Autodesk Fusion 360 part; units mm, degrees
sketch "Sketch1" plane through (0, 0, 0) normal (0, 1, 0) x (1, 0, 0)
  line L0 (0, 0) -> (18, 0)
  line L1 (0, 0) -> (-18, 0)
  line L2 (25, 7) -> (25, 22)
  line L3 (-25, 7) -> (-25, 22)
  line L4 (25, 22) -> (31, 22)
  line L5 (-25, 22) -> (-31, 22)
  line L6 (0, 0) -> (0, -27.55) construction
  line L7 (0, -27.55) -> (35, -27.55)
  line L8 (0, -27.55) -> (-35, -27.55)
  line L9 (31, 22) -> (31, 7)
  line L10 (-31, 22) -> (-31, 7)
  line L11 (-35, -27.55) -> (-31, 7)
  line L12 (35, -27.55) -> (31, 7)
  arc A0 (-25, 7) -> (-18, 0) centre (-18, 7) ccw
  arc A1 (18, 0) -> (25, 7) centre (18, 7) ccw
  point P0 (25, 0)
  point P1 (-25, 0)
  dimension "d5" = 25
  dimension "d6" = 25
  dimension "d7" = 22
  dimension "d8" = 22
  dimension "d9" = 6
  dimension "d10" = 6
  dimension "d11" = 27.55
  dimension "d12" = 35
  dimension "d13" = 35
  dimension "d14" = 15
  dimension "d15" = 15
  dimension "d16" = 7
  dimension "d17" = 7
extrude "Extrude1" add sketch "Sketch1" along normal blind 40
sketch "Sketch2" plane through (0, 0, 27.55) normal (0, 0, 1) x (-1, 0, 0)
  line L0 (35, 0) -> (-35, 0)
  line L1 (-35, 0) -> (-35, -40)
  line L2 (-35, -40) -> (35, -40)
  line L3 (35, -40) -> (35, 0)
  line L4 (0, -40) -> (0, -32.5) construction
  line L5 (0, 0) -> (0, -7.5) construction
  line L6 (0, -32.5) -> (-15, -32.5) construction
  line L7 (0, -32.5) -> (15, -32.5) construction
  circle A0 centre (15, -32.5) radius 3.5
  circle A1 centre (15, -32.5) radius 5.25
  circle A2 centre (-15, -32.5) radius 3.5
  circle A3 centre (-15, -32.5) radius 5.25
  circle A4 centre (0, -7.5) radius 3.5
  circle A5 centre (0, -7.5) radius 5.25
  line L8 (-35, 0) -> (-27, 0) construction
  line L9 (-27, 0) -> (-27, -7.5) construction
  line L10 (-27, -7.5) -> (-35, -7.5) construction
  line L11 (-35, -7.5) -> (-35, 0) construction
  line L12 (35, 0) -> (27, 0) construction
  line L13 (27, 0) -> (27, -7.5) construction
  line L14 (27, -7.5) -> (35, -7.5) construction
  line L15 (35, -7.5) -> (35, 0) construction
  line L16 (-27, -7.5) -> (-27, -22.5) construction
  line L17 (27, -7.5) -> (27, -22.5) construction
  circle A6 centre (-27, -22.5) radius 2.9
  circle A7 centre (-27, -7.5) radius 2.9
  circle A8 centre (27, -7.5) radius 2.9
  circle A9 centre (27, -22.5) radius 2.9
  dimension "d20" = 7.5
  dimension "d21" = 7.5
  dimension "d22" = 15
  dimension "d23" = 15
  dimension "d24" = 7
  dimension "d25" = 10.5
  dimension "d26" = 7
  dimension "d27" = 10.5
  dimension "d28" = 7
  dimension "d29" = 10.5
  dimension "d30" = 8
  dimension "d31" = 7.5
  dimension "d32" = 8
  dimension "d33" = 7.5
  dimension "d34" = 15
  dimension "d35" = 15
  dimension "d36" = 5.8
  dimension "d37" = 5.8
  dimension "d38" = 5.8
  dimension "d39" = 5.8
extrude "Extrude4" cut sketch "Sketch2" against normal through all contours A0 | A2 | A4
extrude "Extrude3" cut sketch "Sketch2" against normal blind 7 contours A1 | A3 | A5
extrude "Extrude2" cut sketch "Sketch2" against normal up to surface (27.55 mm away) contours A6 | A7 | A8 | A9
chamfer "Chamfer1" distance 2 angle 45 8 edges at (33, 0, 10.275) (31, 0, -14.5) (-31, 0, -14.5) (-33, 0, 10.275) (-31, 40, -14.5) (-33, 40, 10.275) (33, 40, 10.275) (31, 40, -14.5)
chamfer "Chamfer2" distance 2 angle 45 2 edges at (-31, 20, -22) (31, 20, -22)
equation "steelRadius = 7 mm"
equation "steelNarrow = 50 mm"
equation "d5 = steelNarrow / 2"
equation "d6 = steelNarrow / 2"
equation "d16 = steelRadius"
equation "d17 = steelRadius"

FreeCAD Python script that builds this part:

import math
import FreeCAD as App
import Part
import Sketcher


def edges_at(feature, points):
    """Names of the edges that pass closest to the given points."""
    edges = feature.Shape.Edges
    near = lambda p: min(range(len(edges)), key=lambda i: edges[i].distToShape(Part.Vertex(*p))[0])
    return sorted({f"Edge{near(p) + 1}" for p in points})

doc = App.newDocument("Part")
params = doc.addObject("Spreadsheet::Sheet", "Params")
for row, (alias, value) in enumerate([
    ("sketch1_radius", "7 mm"),
    ("sketch1_width", "6 mm"),
    ("sketch1_height", "15 mm"),
    ("pad1_length", "40 mm"),
    ("sketch2_diameter", "7 mm"),
    ("sketch3_diameter", "7 mm"),
    ("sketch3_diameter2", "10.5 mm"),
    ("pocket2_length", "7 mm"),
    ("sketch4_diameter", "5.8 mm"),
    ("pocket3_length", "27.55 mm"),
    ("chamfer_size", "2 mm"),
    ("chamfer2_size", "2 mm"),
], start=1):
    params.set(f"A{row}", alias)
    params.set(f"B{row}", "=" + value)
    params.setAlias(f"B{row}", alias)

body = doc.addObject("PartDesign::Body", "Body")

sketch1 = doc.addObject("Sketcher::SketchObject", "Sketch")
body.addObject(sketch1)
sketch1.AttachmentSupport = (doc.XZ_Plane, [""])
sketch1.MapMode = "FlatFace"
sketch1.addGeometry([
    Part.LineSegment(App.Vector(18, 0, 0), App.Vector(-18, 0, 0)),
    Part.ArcOfCircle(Part.Circle(App.Vector(-18, -7, 0), App.Vector(0, 0, 1), 7), math.radians(90), math.radians(180)),
    Part.LineSegment(App.Vector(-25, -7, 0), App.Vector(-25, -22, 0)),
    Part.LineSegment(App.Vector(-25, -22, 0), App.Vector(-31, -22, 0)),
    Part.LineSegment(App.Vector(-31, -22, 0), App.Vector(-31, -7, 0)),
    Part.LineSegment(App.Vector(-31, -7, 0), App.Vector(-35, 27.55, 0)),
    Part.LineSegment(App.Vector(-35, 27.55, 0), App.Vector(35, 27.55, 0)),
    Part.LineSegment(App.Vector(35, 27.55, 0), App.Vector(31, -7, 0)),
    Part.LineSegment(App.Vector(31, -7, 0), App.Vector(31, -22, 0)),
    Part.LineSegment(App.Vector(31, -22, 0), App.Vector(25, -22, 0)),
    Part.LineSegment(App.Vector(25, -22, 0), App.Vector(25, -7, 0)),
    Part.ArcOfCircle(Part.Circle(App.Vector(18, -7, 0), App.Vector(0, 0, 1), 7), math.radians(0), math.radians(90)),
], False)
sketch1.addConstraint([
    Sketcher.Constraint("Tangent", 0, 2, 1, 1),
    Sketcher.Constraint("Tangent", 1, 2, 2, 1),
    Sketcher.Constraint("Coincident", 2, 2, 3, 1),
    Sketcher.Constraint("Coincident", 3, 2, 4, 1),
    Sketcher.Constraint("Coincident", 4, 2, 5, 1),
    Sketcher.Constraint("Coincident", 5, 2, 6, 1),
    Sketcher.Constraint("Coincident", 6, 2, 7, 1),
    Sketcher.Constraint("Coincident", 7, 2, 8, 1),
    Sketcher.Constraint("Coincident", 8, 2, 9, 1),
    Sketcher.Constraint("Coincident", 9, 2, 10, 1),
    Sketcher.Constraint("Tangent", 10, 2, 11, 1),
    Sketcher.Constraint("Tangent", 11, 2, 0, 1),
    Sketcher.Constraint("Horizontal", 0),
    Sketcher.Constraint("Vertical", 2),
    Sketcher.Constraint("Horizontal", 3),
    Sketcher.Constraint("Vertical", 4),
    Sketcher.Constraint("Horizontal", 6),
    Sketcher.Constraint("Vertical", 8),
    Sketcher.Constraint("Horizontal", 9),
    Sketcher.Constraint("Vertical", 10),
    Sketcher.Constraint("Equal", 1, 11),
    Sketcher.Constraint("Symmetric", 0, 2, 11, 2, -1, 1),
    Sketcher.Constraint("Symmetric", 4, 2, 7, 2, -2),
    Sketcher.Constraint("Horizontal", 1, 2, 4, 2),
    Sketcher.Constraint("Horizontal", 3, 2, 8, 2),
    Sketcher.Constraint("Equal", 5, 7),
    Sketcher.Constraint("Radius", 1, 7.0),
    Sketcher.Constraint("DistanceX", 3, 2, 3, 1, 6.0),
    Sketcher.Constraint("DistanceY", 2, 2, 2, 1, 15.0),
    Sketcher.Constraint("DistanceX", 1, 2, -1, 1, 25.0),
    Sketcher.Constraint("DistanceX", 5, 2, -1, 1, 35.0),
    Sketcher.Constraint("DistanceY", -1, 1, 5, 2, 27.55),
])
sketch1.setExpression("Constraints[26]", "Params.sketch1_radius")
sketch1.setExpression("Constraints[27]", "Params.sketch1_width")
sketch1.setExpression("Constraints[28]", "Params.sketch1_height")
pad1 = doc.addObject("PartDesign::Pad", "Pad")
body.addObject(pad1)
pad1.Profile = sketch1
pad1.setExpression("Length", "Params.pad1_length")
pad1.Reversed = True

sketch2 = doc.addObject("Sketcher::SketchObject", "Sketch001")
body.addObject(sketch2)
sketch2.AttachmentSupport = (doc.XY_Plane, [""])
sketch2.MapMode = "FlatFace"
sketch2.AttachmentOffset = App.Placement(App.Vector(0, 0, 27.55), App.Rotation())
sketch2.addGeometry([
    Part.Circle(App.Vector(-15, 32.5, 0), App.Vector(0, 0, 1), 3.5),
    Part.Circle(App.Vector(15, 32.5, 0), App.Vector(0, 0, 1), 3.5),
    Part.Circle(App.Vector(0, 7.5, 0), App.Vector(0, 0, 1), 3.5),
], False)
sketch2.addConstraint([
    Sketcher.Constraint("Equal", 0, 1),
    Sketcher.Constraint("Equal", 1, 2),
    Sketcher.Constraint("Symmetric", 0, 3, 1, 3, -2),
    Sketcher.Constraint("PointOnObject", 2, 3, -2),
    Sketcher.Constraint("Diameter", 0, 7.0),
    Sketcher.Constraint("DistanceX", 0, 3, -1, 1, 15.0),
    Sketcher.Constraint("DistanceY", -1, 1, 2, 3, 7.5),
    Sketcher.Constraint("DistanceY", 2, 3, 0, 3, 25.0),
])
sketch2.setExpression("Constraints[4]", "Params.sketch2_diameter")
pocket1 = doc.addObject("PartDesign::Pocket", "Pocket")
body.addObject(pocket1)
pocket1.Profile = sketch2
pocket1.Type = "ThroughAll"

sketch3 = doc.addObject("Sketcher::SketchObject", "Sketch002")
body.addObject(sketch3)
sketch3.AttachmentSupport = (doc.XY_Plane, [""])
sketch3.MapMode = "FlatFace"
sketch3.AttachmentOffset = App.Placement(App.Vector(0, 0, 27.55), App.Rotation())
sketch3.addGeometry([
    Part.Circle(App.Vector(-15, 32.5, 0), App.Vector(0, 0, 1), 5.25),
    Part.Circle(App.Vector(-15, 32.5, 0), App.Vector(0, 0, 1), 3.5),
    Part.Circle(App.Vector(15, 32.5, 0), App.Vector(0, 0, 1), 5.25),
    Part.Circle(App.Vector(15, 32.5, 0), App.Vector(0, 0, 1), 3.5),
    Part.Circle(App.Vector(0, 7.5, 0), App.Vector(0, 0, 1), 5.25),
    Part.Circle(App.Vector(0, 7.5, 0), App.Vector(0, 0, 1), 3.5),
], False)
sketch3.addConstraint([
    Sketcher.Constraint("Coincident", 1, 3, 0, 3),
    Sketcher.Constraint("Coincident", 3, 3, 2, 3),
    Sketcher.Constraint("Coincident", 5, 3, 4, 3),
    Sketcher.Constraint("Equal", 0, 2),
    Sketcher.Constraint("Equal", 1, 3),
    Sketcher.Constraint("Equal", 2, 4),
    Sketcher.Constraint("Equal", 3, 5),
    Sketcher.Constraint("Symmetric", 0, 3, 2, 3, -2),
    Sketcher.Constraint("PointOnObject", 4, 3, -2),
    Sketcher.Constraint("Diameter", 1, 7.0),
    Sketcher.Constraint("Diameter", 0, 10.5),
    Sketcher.Constraint("DistanceX", 0, 3, -1, 1, 15.0),
    Sketcher.Constraint("DistanceY", -1, 1, 4, 3, 7.5),
    Sketcher.Constraint("DistanceY", 4, 3, 0, 3, 25.0),
])
sketch3.setExpression("Constraints[9]", "Params.sketch3_diameter")
sketch3.setExpression("Constraints[10]", "Params.sketch3_diameter2")
pocket2 = doc.addObject("PartDesign::Pocket", "Pocket001")
body.addObject(pocket2)
pocket2.Profile = sketch3
pocket2.setExpression("Length", "Params.pocket2_length")

sketch4 = doc.addObject("Sketcher::SketchObject", "Sketch003")
body.addObject(sketch4)
sketch4.AttachmentSupport = (doc.XY_Plane, [""])
sketch4.MapMode = "FlatFace"
sketch4.AttachmentOffset = App.Placement(App.Vector(0, 0, 27.55), App.Rotation())
sketch4.addGeometry([
    Part.Circle(App.Vector(27, 22.5, 0), App.Vector(0, 0, 1), 2.9),
    Part.Circle(App.Vector(27, 7.5, 0), App.Vector(0, 0, 1), 2.9),
    Part.Circle(App.Vector(-27, 7.5, 0), App.Vector(0, 0, 1), 2.9),
    Part.Circle(App.Vector(-27, 22.5, 0), App.Vector(0, 0, 1), 2.9),
], False)
sketch4.addConstraint([
    Sketcher.Constraint("Equal", 0, 1),
    Sketcher.Constraint("Equal", 1, 2),
    Sketcher.Constraint("Equal", 2, 3),
    Sketcher.Constraint("Symmetric", 1, 3, 2, 3, -2),
    Sketcher.Constraint("Symmetric", 0, 3, 3, 3, -2),
    Sketcher.Constraint("Vertical", 0, 3, 1, 3),
    Sketcher.Constraint("Diameter", 0, 5.8),
    Sketcher.Constraint("DistanceY", 1, 3, 0, 3, 15.0),
    Sketcher.Constraint("DistanceY", -1, 1, 1, 3, 7.5),
    Sketcher.Constraint("DistanceX", -1, 1, 0, 3, 27.0),
])
sketch4.setExpression("Constraints[6]", "Params.sketch4_diameter")
pocket3 = doc.addObject("PartDesign::Pocket", "Pocket002")
body.addObject(pocket3)
pocket3.Profile = sketch4
pocket3.setExpression("Length", "Params.pocket3_length")
doc.recompute()

chamfer = doc.addObject("PartDesign::Chamfer", "Chamfer")
body.addObject(chamfer)
chamfer.Base = (pocket3, edges_at(pocket3, [
    (33, 0, 10.275),
    (31, 0, -14.5),
    (-31, 0, -14.5),
    (-33, 0, 10.275),
    (-31, 40, -14.5),
    (-33, 40, 10.275),
    (33, 40, 10.275),
    (31, 40, -14.5),
]))
chamfer.setExpression("Size", "Params.chamfer_size")
doc.recompute()

chamfer2 = doc.addObject("PartDesign::Chamfer", "Chamfer001")
body.addObject(chamfer2)
chamfer2.Base = (chamfer, edges_at(chamfer, [(-31, 20, -22), (31, 20, -22)]))
chamfer2.setExpression("Size", "Params.chamfer2_size")

doc.recompute()
